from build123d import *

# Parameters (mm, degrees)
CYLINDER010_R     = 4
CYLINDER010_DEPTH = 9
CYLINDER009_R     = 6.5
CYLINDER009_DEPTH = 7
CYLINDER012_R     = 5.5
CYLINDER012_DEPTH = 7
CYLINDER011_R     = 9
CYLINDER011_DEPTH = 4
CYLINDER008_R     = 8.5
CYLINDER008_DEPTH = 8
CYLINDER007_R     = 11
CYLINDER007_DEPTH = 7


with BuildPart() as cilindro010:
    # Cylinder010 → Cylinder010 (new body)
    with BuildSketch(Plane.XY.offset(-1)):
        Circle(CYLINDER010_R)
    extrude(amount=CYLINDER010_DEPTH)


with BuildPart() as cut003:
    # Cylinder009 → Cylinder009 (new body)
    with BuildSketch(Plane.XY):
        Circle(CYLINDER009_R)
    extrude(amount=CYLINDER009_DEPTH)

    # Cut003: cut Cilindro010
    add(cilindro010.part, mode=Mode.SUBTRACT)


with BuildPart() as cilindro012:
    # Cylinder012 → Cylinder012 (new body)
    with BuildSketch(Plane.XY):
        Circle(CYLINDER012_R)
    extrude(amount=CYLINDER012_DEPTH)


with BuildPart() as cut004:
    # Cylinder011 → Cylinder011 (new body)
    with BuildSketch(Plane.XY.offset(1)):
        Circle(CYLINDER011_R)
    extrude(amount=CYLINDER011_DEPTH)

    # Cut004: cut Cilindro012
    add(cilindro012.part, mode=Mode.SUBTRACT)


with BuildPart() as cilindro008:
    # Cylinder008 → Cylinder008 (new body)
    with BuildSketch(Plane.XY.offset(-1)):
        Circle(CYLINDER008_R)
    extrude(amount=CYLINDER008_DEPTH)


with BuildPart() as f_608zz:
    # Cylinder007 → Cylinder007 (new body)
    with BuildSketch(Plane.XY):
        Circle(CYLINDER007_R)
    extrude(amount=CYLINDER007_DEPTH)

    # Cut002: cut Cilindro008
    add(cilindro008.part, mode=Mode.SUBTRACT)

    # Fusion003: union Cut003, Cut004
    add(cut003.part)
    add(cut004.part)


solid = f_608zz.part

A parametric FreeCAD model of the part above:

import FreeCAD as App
import Part
import Sketcher

V = App.Vector
Q = App.Units.Quantity

doc = App.newDocument("Part")
body = doc.addObject("PartDesign::Body", "Body")

sketch1 = body.newObject("Sketcher::SketchObject", "Sketch")
sketch1.AttachmentSupport = (doc.getObject("XY_Plane"), [""])
sketch1.MapMode = "FlatFace"
sketch1.AttachmentOffset = App.Placement(V(0, 0, -1), App.Rotation())
sketch1.addGeometry(Part.Circle(V(0, 0, 0), V(0, 0, 1), 4), False)
sketch1.addConstraint([
    Sketcher.Constraint("Coincident", 0, 3, -1, 1),
    Sketcher.Constraint("Diameter", 0, Q("8 mm")),
])
pad1 = body.newObject("PartDesign::Pad", "Pad")
pad1.Profile = sketch1
pad1.Length = 9
body2 = doc.addObject("PartDesign::Body", "Body001")

sketch2 = body2.newObject("Sketcher::SketchObject", "Sketch001")
sketch2.AttachmentSupport = (doc.getObject("XY_Plane001"), [""])
sketch2.MapMode = "FlatFace"
sketch2.addGeometry(Part.Circle(V(0, 0, 0), V(0, 0, 1), 6.5), False)
sketch2.addConstraint([
    Sketcher.Constraint("Coincident", 0, 3, -1, 1),
    Sketcher.Constraint("Diameter", 0, Q("13 mm")),
])
pad2 = body2.newObject("PartDesign::Pad", "Pad001")
pad2.Profile = sketch2
pad2.Length = 7
doc.recompute()

boolean = body2.newObject("PartDesign::Boolean", "Boolean")
boolean.Type = "Cut"
boolean.addObjects([body])
body3 = doc.addObject("PartDesign::Body", "Body002")

sketch3 = body3.newObject("Sketcher::SketchObject", "Sketch002")
sketch3.AttachmentSupport = (doc.getObject("XY_Plane002"), [""])
sketch3.MapMode = "FlatFace"
sketch3.addGeometry(Part.Circle(V(0, 0, 0), V(0, 0, 1), 5.5), False)
sketch3.addConstraint([
    Sketcher.Constraint("Coincident", 0, 3, -1, 1),
    Sketcher.Constraint("Diameter", 0, Q("11 mm")),
])
pad3 = body3.newObject("PartDesign::Pad", "Pad002")
pad3.Profile = sketch3
pad3.Length = 7
body4 = doc.addObject("PartDesign::Body", "Body003")

sketch4 = body4.newObject("Sketcher::SketchObject", "Sketch003")
sketch4.AttachmentSupport = (doc.getObject("XY_Plane003"), [""])
sketch4.MapMode = "FlatFace"
sketch4.AttachmentOffset = App.Placement(V(0, 0, 1), App.Rotation())
sketch4.addGeometry(Part.Circle(V(0, 0, 0), V(0, 0, 1), 9), False)
sketch4.addConstraint([
    Sketcher.Constraint("Coincident", 0, 3, -1, 1),
    Sketcher.Constraint("Diameter", 0, Q("18 mm")),
])
pad4 = body4.newObject("PartDesign::Pad", "Pad003")
pad4.Profile = sketch4
pad4.Length = 4
doc.recompute()

boolean2 = body4.newObject("PartDesign::Boolean", "Boolean001")
boolean2.Type = "Cut"
boolean2.addObjects([body3])
body5 = doc.addObject("PartDesign::Body", "Body004")

sketch5 = body5.newObject("Sketcher::SketchObject", "Sketch004")
sketch5.AttachmentSupport = (doc.getObject("XY_Plane004"), [""])
sketch5.MapMode = "FlatFace"
sketch5.AttachmentOffset = App.Placement(V(0, 0, -1), App.Rotation())
sketch5.addGeometry(Part.Circle(V(0, 0, 0), V(0, 0, 1), 8.5), False)
sketch5.addConstraint([
    Sketcher.Constraint("Coincident", 0, 3, -1, 1),
    Sketcher.Constraint("Diameter", 0, Q("17 mm")),
])
pad5 = body5.newObject("PartDesign::Pad", "Pad004")
pad5.Profile = sketch5
pad5.Length = 8
body6 = doc.addObject("PartDesign::Body", "Body005")
body6.AllowCompound = True

sketch6 = body6.newObject("Sketcher::SketchObject", "Sketch005")
sketch6.AttachmentSupport = (doc.getObject("XY_Plane005"), [""])
sketch6.MapMode = "FlatFace"
sketch6.addGeometry(Part.Circle(V(0, 0, 0), V(0, 0, 1), 11), False)
sketch6.addConstraint([
    Sketcher.Constraint("Coincident", 0, 3, -1, 1),
    Sketcher.Constraint("Diameter", 0, Q("22 mm")),
])
pad6 = body6.newObject("PartDesign::Pad", "Pad005")
pad6.Profile = sketch6
pad6.Length = 7
doc.recompute()

boolean3 = body6.newObject("PartDesign::Boolean", "Boolean002")
boolean3.Type = "Cut"
boolean3.addObjects([body5])
doc.recompute()

boolean4 = body6.newObject("PartDesign::Boolean", "Boolean003")
boolean4.Type = "Fuse"
boolean4.addObjects([body2])
doc.recompute()

boolean5 = body6.newObject("PartDesign::Boolean", "Boolean004")
boolean5.Type = "Fuse"
boolean5.addObjects([body4])

doc.recompute()
